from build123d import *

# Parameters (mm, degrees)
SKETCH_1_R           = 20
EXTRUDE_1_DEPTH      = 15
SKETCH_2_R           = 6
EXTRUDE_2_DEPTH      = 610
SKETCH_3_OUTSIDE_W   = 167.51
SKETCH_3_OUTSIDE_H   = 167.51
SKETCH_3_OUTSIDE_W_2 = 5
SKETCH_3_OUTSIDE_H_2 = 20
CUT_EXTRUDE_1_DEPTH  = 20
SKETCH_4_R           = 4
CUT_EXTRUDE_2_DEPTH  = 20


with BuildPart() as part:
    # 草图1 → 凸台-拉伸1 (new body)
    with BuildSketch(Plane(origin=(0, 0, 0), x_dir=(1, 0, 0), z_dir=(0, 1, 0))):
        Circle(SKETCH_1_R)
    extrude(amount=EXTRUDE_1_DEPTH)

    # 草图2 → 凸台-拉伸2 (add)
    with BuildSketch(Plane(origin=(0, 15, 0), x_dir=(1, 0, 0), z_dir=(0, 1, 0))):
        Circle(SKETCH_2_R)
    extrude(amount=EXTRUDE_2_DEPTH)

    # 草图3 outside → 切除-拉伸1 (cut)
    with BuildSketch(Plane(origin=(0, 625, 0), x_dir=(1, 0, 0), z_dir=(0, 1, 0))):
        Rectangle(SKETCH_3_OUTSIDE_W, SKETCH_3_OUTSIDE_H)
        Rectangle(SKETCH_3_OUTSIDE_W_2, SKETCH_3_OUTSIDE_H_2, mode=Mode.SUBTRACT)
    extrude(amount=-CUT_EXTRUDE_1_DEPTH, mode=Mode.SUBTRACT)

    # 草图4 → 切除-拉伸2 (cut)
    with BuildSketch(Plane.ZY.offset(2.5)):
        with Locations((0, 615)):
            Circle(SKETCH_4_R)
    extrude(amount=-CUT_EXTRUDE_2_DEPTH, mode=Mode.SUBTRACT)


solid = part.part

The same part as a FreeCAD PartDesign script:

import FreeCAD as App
import Part
import Sketcher
from FreeCAD import Vector
Q = App.Units.Quantity

doc = App.newDocument("Part")
body = doc.addObject("PartDesign::Body", "Body")

sketch1 = doc.addObject("Sketcher::SketchObject", "Sketch")
body.addObject(sketch1)
sketch1.AttachmentSupport = (doc.XZ_Plane, [""])
sketch1.MapMode = "FlatFace"
sketch1.addGeometry(Part.Circle(Vector(0, 0, 0), Vector(0, 0, 1), 20), False)
sketch1.addConstraint([
    Sketcher.Constraint("Coincident", 0, 3, -1, 1),
    Sketcher.Constraint("Diameter", 0, Q("40 mm")),
])
pad1 = doc.addObject("PartDesign::Pad", "Pad")
body.addObject(pad1)
pad1.Profile = sketch1
pad1.Length = 15
pad1.Reversed = True

sketch2 = doc.addObject("Sketcher::SketchObject", "Sketch001")
body.addObject(sketch2)
sketch2.AttachmentSupport = (doc.XZ_Plane, [""])
sketch2.MapMode = "FlatFace"
sketch2.AttachmentOffset = App.Placement(Vector(0, 0, -15), App.Rotation())
sketch2.addGeometry(Part.Circle(Vector(0, 0, 0), Vector(0, 0, 1), 6), False)
sketch2.addConstraint([
    Sketcher.Constraint("Coincident", 0, 3, -1, 1),
    Sketcher.Constraint("Diameter", 0, Q("12 mm")),
])
pad2 = doc.addObject("PartDesign::Pad", "Pad001")
body.addObject(pad2)
pad2.Profile = sketch2
pad2.Length = 610
pad2.Reversed = True

sketch3 = doc.addObject("Sketcher::SketchObject", "Sketch002")
body.addObject(sketch3)
sketch3.AttachmentSupport = (doc.XZ_Plane, [""])
sketch3.MapMode = "FlatFace"
sketch3.AttachmentOffset = App.Placement(Vector(0, 0, -625), App.Rotation())
sketch3.addGeometry([
    Part.LineSegment(Vector(-83.755, -83.755, 0), Vector(-83.755, 83.755, 0)),
    Part.LineSegment(Vector(-83.755, 83.755, 0), Vector(83.755, 83.755, 0)),
    Part.LineSegment(Vector(83.755, 83.755, 0), Vector(83.755, -83.755, 0)),
    Part.LineSegment(Vector(83.755, -83.755, 0), Vector(-83.755, -83.755, 0)),
    Part.LineSegment(Vector(2.5, 10, 0), Vector(-2.5, 10, 0)),
    Part.LineSegment(Vector(-2.5, 10, 0), Vector(-2.5, -10, 0)),
    Part.LineSegment(Vector(-2.5, -10, 0), Vector(2.5, -10, 0)),
    Part.LineSegment(Vector(2.5, -10, 0), Vector(2.5, 10, 0)),
], False)
sketch3.addConstraint([
    Sketcher.Constraint("Coincident", 0, 2, 1, 1),
    Sketcher.Constraint("Coincident", 1, 2, 2, 1),
    Sketcher.Constraint("Coincident", 2, 2, 3, 1),
    Sketcher.Constraint("Coincident", 3, 2, 0, 1),
    Sketcher.Constraint("Coincident", 4, 2, 5, 1),
    Sketcher.Constraint("Coincident", 5, 2, 6, 1),
    Sketcher.Constraint("Coincident", 6, 2, 7, 1),
    Sketcher.Constraint("Coincident", 7, 2, 4, 1),
    Sketcher.Constraint("Vertical", 0),
    Sketcher.Constraint("Horizontal", 1),
    Sketcher.Constraint("Vertical", 2),
    Sketcher.Constraint("Horizontal", 3),
    Sketcher.Constraint("Horizontal", 4),
    Sketcher.Constraint("Vertical", 5),
    Sketcher.Constraint("Horizontal", 6),
    Sketcher.Constraint("Vertical", 7),
    Sketcher.Constraint("Symmetric", 0, 2, 2, 2, -1, 1),
    Sketcher.Constraint("Symmetric", 4, 2, 6, 2, -1, 1),
    Sketcher.Constraint("Equal", 3, 0),
    Sketcher.Constraint("DistanceX", 4, 2, 4, 1, Q("5 mm")),
    Sketcher.Constraint("DistanceY", 5, 2, 5, 1, Q("20 mm")),
    Sketcher.Constraint("DistanceX", 1, 1, 1, 2, Q("167.51 mm")),
])
pocket1 = doc.addObject("PartDesign::Pocket", "Pocket")
body.addObject(pocket1)
pocket1.Profile = sketch3
pocket1.Length = 20
pocket1.Reversed = True

sketch4 = doc.addObject("Sketcher::SketchObject", "Sketch003")
body.addObject(sketch4)
sketch4.AttachmentSupport = (doc.YZ_Plane, [""])
sketch4.MapMode = "FlatFace"
sketch4.AttachmentOffset = App.Placement(Vector(0, 0, -2.5), App.Rotation())
sketch4.addGeometry(Part.Circle(Vector(615, 0, 0), Vector(0, 0, 1), 4), False)
sketch4.addConstraint([
    Sketcher.Constraint("PointOnObject", 0, 3, -1),
    Sketcher.Constraint("Diameter", 0, Q("8 mm")),
    Sketcher.Constraint("DistanceX", -1, 1, 0, 3, Q("615 mm")),
])
pocket2 = doc.addObject("PartDesign::Pocket", "Pocket001")
body.addObject(pocket2)
pocket2.Profile = sketch4
pocket2.Length = 20
pocket2.Reversed = True

doc.recompute()
